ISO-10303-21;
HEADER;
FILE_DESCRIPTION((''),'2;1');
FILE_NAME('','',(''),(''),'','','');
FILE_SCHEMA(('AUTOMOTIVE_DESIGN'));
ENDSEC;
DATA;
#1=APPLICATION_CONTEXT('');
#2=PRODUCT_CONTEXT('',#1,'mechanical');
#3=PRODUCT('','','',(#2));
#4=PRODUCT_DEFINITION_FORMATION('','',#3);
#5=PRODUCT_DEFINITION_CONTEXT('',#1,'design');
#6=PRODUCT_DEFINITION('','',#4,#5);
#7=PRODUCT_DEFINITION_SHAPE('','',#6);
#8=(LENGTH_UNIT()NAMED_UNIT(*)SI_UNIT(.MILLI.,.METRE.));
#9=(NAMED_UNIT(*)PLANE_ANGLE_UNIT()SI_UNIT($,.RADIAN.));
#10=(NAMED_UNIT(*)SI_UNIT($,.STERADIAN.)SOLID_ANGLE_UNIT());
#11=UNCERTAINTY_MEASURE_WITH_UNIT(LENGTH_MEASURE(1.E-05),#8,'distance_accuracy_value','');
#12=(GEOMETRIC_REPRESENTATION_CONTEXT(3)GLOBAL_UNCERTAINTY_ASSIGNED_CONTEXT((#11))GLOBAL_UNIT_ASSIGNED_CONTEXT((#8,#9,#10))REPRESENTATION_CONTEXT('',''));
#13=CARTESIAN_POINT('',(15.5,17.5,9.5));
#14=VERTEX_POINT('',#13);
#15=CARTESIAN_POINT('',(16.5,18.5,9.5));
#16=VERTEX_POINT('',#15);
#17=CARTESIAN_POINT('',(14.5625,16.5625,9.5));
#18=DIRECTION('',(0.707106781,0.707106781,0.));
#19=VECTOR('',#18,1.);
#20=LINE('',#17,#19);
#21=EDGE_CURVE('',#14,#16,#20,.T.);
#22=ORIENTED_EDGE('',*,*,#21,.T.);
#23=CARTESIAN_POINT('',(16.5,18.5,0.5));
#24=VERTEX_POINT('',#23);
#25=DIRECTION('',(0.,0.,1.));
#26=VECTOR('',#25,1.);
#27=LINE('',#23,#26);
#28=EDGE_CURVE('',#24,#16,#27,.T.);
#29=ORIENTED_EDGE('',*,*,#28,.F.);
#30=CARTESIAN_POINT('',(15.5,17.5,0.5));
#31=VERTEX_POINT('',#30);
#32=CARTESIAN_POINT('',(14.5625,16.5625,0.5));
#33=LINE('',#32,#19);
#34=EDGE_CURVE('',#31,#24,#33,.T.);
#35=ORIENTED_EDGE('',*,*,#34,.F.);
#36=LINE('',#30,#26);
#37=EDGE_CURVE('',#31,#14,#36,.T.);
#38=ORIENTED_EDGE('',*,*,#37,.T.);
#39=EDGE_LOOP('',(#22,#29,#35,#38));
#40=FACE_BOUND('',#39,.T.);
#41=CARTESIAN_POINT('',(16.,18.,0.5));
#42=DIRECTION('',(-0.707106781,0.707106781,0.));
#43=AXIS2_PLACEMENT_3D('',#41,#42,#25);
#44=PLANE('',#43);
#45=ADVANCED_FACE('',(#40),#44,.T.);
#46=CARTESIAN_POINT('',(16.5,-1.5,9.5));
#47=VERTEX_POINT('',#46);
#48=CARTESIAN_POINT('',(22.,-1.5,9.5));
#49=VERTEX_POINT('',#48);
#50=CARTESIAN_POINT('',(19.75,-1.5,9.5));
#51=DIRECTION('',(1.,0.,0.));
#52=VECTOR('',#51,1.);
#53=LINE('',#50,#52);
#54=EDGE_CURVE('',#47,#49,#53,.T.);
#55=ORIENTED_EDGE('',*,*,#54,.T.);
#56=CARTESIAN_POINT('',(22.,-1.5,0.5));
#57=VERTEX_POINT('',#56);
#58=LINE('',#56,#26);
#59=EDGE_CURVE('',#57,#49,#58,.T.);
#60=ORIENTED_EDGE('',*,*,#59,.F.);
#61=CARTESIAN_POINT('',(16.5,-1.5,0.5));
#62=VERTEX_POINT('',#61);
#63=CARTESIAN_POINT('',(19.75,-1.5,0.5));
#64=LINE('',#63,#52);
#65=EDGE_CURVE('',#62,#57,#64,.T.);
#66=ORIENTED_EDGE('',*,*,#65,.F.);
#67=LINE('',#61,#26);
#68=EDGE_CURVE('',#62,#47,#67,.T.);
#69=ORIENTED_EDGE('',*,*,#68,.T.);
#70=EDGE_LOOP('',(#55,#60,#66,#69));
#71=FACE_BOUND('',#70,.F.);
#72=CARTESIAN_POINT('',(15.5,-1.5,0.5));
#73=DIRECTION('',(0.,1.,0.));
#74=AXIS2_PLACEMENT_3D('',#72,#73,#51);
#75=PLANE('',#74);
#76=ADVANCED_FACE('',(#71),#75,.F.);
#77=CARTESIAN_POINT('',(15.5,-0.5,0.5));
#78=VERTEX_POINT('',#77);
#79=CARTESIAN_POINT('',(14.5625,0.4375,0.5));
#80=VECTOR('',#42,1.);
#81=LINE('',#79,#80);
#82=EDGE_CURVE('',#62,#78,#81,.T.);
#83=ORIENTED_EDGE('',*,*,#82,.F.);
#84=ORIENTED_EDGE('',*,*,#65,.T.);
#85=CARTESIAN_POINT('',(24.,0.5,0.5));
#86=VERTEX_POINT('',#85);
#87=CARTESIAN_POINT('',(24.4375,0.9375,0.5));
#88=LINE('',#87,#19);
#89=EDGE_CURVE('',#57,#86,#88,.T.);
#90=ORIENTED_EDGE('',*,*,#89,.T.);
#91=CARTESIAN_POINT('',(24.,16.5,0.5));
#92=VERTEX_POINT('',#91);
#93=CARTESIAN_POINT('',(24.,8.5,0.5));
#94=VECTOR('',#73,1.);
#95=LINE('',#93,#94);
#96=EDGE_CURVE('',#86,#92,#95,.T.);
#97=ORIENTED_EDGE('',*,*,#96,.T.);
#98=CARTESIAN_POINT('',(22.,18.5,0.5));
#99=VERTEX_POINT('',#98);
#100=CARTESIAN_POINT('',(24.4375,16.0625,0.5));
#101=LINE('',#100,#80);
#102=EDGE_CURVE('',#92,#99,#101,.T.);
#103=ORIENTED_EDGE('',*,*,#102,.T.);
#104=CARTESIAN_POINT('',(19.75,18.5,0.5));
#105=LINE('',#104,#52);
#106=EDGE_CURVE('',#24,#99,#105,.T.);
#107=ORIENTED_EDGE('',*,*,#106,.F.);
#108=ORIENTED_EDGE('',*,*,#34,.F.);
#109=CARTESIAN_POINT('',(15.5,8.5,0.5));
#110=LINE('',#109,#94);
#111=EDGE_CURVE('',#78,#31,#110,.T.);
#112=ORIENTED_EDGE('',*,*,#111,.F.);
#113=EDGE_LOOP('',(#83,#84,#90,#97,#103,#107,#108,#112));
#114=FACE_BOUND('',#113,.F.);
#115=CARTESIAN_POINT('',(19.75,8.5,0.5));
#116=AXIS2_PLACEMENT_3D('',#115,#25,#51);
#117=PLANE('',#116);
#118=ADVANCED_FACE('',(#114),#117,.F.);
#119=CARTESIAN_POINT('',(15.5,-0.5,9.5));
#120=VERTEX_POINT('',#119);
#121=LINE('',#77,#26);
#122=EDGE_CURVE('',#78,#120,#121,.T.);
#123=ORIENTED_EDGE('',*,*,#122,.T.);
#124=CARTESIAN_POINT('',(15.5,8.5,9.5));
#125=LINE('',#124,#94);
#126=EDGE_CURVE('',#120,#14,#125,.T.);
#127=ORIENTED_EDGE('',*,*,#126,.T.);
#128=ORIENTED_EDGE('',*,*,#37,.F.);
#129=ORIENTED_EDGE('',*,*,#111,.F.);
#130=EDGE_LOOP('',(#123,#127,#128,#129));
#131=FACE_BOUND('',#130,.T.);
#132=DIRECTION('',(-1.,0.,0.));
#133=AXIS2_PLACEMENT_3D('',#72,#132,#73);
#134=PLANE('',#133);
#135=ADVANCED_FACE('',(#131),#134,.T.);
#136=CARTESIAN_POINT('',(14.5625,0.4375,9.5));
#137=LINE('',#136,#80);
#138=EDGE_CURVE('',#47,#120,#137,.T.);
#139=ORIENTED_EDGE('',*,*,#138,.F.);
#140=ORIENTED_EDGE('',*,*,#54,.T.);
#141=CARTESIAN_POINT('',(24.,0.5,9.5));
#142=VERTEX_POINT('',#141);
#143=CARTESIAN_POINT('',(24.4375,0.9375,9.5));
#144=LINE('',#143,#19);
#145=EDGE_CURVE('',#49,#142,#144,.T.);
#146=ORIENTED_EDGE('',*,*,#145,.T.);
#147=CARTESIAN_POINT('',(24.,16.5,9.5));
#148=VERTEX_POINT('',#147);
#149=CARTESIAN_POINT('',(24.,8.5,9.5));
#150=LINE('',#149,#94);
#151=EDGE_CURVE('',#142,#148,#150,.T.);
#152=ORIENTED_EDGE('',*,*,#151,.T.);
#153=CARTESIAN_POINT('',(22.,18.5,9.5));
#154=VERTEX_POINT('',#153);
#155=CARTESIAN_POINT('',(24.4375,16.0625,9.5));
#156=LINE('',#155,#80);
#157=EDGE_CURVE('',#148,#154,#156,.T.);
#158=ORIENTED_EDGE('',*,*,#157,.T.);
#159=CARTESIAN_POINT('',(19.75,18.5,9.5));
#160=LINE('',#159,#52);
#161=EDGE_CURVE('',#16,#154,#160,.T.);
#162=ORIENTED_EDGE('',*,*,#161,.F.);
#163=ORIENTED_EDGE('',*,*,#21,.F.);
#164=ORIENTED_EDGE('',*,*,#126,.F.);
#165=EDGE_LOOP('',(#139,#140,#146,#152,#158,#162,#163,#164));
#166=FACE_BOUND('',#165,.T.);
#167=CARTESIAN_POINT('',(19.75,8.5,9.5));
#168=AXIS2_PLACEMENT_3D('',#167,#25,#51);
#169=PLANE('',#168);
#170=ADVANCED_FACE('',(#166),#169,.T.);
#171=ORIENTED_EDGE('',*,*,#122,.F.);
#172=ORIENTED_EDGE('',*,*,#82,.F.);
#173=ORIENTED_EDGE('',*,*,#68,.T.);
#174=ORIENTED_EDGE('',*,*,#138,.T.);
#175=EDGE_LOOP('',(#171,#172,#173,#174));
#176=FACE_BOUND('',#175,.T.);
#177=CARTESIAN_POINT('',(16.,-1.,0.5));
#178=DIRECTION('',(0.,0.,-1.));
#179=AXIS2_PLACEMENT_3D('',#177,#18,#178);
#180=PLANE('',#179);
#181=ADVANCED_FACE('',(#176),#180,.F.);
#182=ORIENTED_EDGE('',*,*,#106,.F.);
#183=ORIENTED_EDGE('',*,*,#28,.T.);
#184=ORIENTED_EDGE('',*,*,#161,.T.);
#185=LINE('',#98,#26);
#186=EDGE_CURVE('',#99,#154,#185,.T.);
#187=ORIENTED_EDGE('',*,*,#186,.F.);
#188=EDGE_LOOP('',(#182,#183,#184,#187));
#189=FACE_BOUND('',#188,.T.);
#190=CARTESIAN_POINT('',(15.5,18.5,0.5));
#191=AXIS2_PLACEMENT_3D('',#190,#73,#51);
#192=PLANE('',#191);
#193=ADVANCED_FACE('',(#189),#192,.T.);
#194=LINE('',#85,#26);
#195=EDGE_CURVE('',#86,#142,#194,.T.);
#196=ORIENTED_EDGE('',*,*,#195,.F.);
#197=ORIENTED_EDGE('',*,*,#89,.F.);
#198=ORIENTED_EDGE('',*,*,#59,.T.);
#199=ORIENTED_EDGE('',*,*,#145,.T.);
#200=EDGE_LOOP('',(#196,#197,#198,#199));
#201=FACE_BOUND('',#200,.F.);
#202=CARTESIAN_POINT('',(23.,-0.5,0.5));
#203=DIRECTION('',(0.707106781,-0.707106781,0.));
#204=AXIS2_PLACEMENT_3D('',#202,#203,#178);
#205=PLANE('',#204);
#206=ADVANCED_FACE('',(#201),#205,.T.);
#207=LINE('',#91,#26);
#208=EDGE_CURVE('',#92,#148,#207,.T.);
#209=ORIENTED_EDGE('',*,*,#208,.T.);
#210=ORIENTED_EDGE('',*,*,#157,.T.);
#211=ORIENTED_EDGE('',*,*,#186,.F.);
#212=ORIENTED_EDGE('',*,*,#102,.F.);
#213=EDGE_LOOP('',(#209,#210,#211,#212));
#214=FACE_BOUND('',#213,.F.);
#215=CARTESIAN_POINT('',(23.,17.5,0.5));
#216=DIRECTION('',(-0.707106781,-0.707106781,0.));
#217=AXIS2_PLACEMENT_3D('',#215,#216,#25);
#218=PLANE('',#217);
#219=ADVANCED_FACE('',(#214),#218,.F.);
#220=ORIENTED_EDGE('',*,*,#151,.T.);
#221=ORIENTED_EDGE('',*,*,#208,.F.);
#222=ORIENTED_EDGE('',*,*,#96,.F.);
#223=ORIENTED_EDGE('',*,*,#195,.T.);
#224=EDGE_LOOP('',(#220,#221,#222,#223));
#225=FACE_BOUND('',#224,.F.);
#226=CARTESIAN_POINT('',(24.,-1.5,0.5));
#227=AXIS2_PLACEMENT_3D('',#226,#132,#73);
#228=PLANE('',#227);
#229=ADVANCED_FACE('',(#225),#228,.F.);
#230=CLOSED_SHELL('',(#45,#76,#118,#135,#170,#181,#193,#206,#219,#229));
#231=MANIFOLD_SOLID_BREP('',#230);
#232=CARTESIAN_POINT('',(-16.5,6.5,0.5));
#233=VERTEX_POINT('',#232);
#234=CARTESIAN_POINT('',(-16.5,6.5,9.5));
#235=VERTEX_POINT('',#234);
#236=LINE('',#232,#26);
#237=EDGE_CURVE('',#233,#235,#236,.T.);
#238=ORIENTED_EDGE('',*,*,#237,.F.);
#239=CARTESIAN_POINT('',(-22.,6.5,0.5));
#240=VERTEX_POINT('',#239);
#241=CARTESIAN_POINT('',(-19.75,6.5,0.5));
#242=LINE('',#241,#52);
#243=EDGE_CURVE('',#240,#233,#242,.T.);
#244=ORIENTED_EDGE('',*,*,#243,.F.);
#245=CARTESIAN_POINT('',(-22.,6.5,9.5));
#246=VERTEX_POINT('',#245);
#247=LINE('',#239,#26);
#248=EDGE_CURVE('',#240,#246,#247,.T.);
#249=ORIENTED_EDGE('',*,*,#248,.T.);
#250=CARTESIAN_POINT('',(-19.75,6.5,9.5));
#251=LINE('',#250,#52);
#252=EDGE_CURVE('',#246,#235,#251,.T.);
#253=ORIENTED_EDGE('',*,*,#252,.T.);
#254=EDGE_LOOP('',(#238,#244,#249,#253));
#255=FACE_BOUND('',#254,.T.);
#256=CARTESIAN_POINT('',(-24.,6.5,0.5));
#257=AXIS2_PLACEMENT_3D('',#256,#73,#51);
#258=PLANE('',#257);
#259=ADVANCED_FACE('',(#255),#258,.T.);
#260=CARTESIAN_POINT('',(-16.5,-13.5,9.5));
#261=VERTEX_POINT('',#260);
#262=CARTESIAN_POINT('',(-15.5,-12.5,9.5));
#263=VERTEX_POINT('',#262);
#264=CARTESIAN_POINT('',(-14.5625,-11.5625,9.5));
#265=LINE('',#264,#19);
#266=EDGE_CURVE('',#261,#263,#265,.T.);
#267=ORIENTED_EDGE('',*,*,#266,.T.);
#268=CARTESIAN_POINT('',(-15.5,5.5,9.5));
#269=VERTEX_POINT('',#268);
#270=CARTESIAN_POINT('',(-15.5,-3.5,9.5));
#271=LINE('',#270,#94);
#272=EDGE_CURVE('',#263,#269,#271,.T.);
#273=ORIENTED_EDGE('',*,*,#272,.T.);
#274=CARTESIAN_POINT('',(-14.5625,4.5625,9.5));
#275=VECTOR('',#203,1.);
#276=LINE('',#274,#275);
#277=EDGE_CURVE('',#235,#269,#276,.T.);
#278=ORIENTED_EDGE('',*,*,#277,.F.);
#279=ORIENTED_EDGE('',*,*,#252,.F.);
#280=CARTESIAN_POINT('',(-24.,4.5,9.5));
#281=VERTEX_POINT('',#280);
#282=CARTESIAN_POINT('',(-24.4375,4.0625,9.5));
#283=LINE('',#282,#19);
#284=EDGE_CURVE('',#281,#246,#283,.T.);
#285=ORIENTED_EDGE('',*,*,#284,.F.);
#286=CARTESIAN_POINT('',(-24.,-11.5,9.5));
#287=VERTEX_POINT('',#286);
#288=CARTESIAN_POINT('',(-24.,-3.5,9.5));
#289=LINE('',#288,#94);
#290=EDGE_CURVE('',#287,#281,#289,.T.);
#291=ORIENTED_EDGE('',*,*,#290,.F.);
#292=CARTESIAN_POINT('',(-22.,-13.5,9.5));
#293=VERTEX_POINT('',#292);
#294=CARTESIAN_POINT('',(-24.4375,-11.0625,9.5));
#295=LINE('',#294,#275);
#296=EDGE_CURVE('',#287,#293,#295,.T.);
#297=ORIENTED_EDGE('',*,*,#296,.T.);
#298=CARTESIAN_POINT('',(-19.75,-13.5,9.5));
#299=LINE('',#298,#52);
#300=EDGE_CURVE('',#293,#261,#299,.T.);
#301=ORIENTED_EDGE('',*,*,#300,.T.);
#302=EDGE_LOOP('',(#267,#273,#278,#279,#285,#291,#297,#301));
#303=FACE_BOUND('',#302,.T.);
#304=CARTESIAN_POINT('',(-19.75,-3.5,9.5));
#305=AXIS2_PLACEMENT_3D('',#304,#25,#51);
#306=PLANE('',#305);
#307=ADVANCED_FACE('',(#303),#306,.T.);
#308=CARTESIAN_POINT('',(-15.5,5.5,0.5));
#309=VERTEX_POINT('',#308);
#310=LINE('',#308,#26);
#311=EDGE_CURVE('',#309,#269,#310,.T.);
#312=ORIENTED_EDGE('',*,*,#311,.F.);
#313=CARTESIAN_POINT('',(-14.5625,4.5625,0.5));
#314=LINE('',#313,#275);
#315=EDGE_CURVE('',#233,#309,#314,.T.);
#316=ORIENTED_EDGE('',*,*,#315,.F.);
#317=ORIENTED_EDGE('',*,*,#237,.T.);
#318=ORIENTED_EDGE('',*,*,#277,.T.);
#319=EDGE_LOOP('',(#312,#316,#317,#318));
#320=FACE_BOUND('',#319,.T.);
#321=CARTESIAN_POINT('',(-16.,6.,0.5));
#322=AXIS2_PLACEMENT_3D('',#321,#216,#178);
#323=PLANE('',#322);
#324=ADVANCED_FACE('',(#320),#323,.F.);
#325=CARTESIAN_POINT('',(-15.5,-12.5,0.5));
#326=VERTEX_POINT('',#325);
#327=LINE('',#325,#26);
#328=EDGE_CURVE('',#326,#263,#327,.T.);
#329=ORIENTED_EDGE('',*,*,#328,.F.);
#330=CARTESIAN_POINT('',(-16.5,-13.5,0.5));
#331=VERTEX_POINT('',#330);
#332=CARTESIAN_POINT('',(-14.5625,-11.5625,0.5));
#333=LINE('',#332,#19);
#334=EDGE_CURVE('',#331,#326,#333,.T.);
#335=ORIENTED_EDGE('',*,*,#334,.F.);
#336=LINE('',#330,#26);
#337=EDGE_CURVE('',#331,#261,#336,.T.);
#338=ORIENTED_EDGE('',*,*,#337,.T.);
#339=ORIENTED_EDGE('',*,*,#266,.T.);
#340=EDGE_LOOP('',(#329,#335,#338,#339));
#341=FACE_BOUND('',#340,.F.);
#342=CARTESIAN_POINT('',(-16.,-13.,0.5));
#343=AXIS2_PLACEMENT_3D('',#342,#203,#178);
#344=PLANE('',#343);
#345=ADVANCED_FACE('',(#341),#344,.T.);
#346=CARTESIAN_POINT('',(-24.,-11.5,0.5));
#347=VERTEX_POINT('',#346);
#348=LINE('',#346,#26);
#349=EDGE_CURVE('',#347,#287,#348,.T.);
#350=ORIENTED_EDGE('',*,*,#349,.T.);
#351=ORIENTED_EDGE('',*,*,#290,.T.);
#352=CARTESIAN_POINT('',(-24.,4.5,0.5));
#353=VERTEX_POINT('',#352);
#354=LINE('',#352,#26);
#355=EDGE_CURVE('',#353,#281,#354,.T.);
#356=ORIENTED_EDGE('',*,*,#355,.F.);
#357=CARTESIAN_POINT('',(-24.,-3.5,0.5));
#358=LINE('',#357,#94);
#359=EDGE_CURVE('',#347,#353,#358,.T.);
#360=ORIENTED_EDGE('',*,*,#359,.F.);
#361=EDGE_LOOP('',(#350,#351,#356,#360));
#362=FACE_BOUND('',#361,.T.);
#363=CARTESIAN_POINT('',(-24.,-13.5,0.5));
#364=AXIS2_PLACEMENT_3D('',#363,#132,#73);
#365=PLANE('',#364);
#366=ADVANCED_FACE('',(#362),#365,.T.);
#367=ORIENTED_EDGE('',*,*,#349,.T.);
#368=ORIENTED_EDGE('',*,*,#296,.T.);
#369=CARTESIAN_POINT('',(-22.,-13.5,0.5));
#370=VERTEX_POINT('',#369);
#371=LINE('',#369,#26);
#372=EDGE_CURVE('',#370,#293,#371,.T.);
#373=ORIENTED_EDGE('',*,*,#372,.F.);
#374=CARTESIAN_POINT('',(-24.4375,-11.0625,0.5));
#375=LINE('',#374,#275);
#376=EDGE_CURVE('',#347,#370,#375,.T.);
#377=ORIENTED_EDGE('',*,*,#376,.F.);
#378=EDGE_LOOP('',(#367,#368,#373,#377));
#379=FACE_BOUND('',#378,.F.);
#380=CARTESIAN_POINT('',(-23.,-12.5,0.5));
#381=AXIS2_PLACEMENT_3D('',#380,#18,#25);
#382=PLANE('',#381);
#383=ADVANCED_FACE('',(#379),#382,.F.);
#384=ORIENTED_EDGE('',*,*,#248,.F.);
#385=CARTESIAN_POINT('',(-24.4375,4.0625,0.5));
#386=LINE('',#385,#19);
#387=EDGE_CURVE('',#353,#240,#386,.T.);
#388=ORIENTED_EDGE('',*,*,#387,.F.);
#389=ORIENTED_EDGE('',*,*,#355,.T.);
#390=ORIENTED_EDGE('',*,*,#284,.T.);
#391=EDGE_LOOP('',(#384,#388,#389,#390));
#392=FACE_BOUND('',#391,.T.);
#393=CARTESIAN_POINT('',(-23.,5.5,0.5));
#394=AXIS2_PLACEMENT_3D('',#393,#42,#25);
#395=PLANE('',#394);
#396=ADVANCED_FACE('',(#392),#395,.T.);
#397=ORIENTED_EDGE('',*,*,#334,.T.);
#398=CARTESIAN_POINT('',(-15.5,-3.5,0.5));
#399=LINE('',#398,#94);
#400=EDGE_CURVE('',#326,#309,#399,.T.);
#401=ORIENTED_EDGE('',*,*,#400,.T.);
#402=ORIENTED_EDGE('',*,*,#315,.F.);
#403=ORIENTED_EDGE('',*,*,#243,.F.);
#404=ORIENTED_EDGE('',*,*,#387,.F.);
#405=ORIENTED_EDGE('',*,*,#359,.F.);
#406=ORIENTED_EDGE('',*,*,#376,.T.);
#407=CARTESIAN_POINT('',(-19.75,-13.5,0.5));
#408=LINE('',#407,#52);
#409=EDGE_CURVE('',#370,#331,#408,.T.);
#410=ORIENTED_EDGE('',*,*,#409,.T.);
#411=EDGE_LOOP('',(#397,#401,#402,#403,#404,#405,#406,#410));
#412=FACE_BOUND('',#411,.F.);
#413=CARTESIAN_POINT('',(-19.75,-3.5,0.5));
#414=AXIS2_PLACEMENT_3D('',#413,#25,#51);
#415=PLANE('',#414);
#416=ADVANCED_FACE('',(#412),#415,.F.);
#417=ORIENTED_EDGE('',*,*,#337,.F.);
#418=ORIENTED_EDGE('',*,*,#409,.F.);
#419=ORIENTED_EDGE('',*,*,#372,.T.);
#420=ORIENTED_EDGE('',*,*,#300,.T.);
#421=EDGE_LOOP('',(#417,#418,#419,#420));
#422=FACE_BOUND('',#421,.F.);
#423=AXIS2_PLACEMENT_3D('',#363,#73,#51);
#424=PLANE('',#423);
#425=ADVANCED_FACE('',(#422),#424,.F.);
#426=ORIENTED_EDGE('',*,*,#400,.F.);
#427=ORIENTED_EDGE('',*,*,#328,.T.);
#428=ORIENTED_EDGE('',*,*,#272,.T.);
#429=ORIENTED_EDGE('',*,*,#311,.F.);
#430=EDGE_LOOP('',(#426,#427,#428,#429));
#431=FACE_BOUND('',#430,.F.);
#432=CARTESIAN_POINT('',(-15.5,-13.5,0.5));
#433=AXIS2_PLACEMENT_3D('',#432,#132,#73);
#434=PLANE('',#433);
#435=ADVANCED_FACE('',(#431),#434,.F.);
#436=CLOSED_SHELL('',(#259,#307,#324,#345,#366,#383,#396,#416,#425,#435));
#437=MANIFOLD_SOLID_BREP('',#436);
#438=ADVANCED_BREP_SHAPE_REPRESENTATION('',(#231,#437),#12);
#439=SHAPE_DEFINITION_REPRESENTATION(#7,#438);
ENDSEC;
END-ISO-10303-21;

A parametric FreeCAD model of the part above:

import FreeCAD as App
import Part
import Sketcher

V = App.Vector
Q = App.Units.Quantity


def edges_at(feature, points):
    """Names of the edges that pass closest to the given points."""
    edges = feature.Shape.Edges
    near = lambda p: min(range(len(edges)), key=lambda i: edges[i].distToShape(Part.Vertex(*p))[0])
    return sorted({f"Edge{near(p) + 1}" for p in points})

doc = App.newDocument("Part")
body = doc.addObject("PartDesign::Body", "Body")

# Sketch on XY plane
sketch1 = body.newObject("Sketcher::SketchObject", "Sketch")
sketch1.AttachmentSupport = (doc.getObject("XY_Plane"), [""])
sketch1.MapMode = "FlatFace"
sketch1.AttachmentOffset = App.Placement(V(0, 0, 0.5), App.Rotation())
sketch1.addGeometry([
    Part.LineSegment(V(16, 18, 0), V(16, -2, 0)),
    Part.LineSegment(V(16, -2, 0), V(24, -2, 0)),
    Part.LineSegment(V(24, -2, 0), V(24, 18, 0)),
    Part.LineSegment(V(24, 18, 0), V(16, 18, 0)),
], False)
sketch1.addConstraint([
    Sketcher.Constraint("Coincident", 0, 2, 1, 1),
    Sketcher.Constraint("Coincident", 1, 2, 2, 1),
    Sketcher.Constraint("Coincident", 2, 2, 3, 1),
    Sketcher.Constraint("Coincident", 3, 2, 0, 1),
    Sketcher.Constraint("Vertical", 0),
    Sketcher.Constraint("Horizontal", 1),
    Sketcher.Constraint("Vertical", 2),
    Sketcher.Constraint("Horizontal", 3),
    Sketcher.Constraint("DistanceY", 0, 2, 0, 1, Q("20 mm")),
    Sketcher.Constraint("DistanceX", 1, 1, 1, 2, Q("8.5 mm")),
    Sketcher.Constraint("DistanceX", -1, 1, 1, 2, Q("24 mm")),
    Sketcher.Constraint("DistanceY", 0, 2, -1, 1, Q("1.5 mm")),
])
pad1 = body.newObject("PartDesign::Pad", "Pad")
pad1.Profile = sketch1
pad1.Length = 9
body2 = doc.addObject("PartDesign::Body", "Body001")
body2.AllowCompound = True

# Sketch on XY plane
sketch2 = body2.newObject("Sketcher::SketchObject", "Sketch001")
sketch2.AttachmentSupport = (doc.getObject("XY_Plane001"), [""])
sketch2.MapMode = "FlatFace"
sketch2.AttachmentOffset = App.Placement(V(0, 0, 0.5), App.Rotation())
sketch2.addGeometry([
    Part.LineSegment(V(-24, 6, 0), V(-24, -14, 0)),
    Part.LineSegment(V(-24, -14, 0), V(-16, -14, 0)),
    Part.LineSegment(V(-16, -14, 0), V(-16, 6, 0)),
    Part.LineSegment(V(-16, 6, 0), V(-24, 6, 0)),
], False)
sketch2.addConstraint([
    Sketcher.Constraint("Coincident", 0, 2, 1, 1),
    Sketcher.Constraint("Coincident", 1, 2, 2, 1),
    Sketcher.Constraint("Coincident", 2, 2, 3, 1),
    Sketcher.Constraint("Coincident", 3, 2, 0, 1),
    Sketcher.Constraint("Vertical", 0),
    Sketcher.Constraint("Horizontal", 1),
    Sketcher.Constraint("Vertical", 2),
    Sketcher.Constraint("Horizontal", 3),
    Sketcher.Constraint("DistanceY", 0, 2, 0, 1, Q("20 mm")),
    Sketcher.Constraint("DistanceX", 1, 1, 1, 2, Q("8.5 mm")),
    Sketcher.Constraint("DistanceX", 0, 2, -1, 1, Q("24 mm")),
    Sketcher.Constraint("DistanceY", 0, 2, -1, 1, Q("13.5 mm")),
])
pad2 = body2.newObject("PartDesign::Pad", "Pad001")
pad2.Profile = sketch2
pad2.Length = 9
doc.recompute()

boolean = body2.newObject("PartDesign::Boolean", "Boolean")
boolean.Type = "Fuse"
boolean.addObjects([body])
doc.recompute()

chamfer = body2.newObject("PartDesign::Chamfer", "Chamfer")
chamfer.Base = (boolean, edges_at(boolean, [
    (-24, -13.5, 5),
    (-24, 6.5, 5),
    (24, -1.5, 5),
    (24, 18.5, 5),
]))
chamfer.Size = 2
doc.recompute()

chamfer2 = body2.newObject("PartDesign::Chamfer", "Chamfer001")
chamfer2.Base = (chamfer, edges_at(chamfer, [
    (-15.5, -13.5, 5),
    (-15.5, 6.5, 5),
    (15.5, 18.5, 5),
    (15.5, -1.5, 5),
]))
chamfer2.Size = 1

doc.recompute()
